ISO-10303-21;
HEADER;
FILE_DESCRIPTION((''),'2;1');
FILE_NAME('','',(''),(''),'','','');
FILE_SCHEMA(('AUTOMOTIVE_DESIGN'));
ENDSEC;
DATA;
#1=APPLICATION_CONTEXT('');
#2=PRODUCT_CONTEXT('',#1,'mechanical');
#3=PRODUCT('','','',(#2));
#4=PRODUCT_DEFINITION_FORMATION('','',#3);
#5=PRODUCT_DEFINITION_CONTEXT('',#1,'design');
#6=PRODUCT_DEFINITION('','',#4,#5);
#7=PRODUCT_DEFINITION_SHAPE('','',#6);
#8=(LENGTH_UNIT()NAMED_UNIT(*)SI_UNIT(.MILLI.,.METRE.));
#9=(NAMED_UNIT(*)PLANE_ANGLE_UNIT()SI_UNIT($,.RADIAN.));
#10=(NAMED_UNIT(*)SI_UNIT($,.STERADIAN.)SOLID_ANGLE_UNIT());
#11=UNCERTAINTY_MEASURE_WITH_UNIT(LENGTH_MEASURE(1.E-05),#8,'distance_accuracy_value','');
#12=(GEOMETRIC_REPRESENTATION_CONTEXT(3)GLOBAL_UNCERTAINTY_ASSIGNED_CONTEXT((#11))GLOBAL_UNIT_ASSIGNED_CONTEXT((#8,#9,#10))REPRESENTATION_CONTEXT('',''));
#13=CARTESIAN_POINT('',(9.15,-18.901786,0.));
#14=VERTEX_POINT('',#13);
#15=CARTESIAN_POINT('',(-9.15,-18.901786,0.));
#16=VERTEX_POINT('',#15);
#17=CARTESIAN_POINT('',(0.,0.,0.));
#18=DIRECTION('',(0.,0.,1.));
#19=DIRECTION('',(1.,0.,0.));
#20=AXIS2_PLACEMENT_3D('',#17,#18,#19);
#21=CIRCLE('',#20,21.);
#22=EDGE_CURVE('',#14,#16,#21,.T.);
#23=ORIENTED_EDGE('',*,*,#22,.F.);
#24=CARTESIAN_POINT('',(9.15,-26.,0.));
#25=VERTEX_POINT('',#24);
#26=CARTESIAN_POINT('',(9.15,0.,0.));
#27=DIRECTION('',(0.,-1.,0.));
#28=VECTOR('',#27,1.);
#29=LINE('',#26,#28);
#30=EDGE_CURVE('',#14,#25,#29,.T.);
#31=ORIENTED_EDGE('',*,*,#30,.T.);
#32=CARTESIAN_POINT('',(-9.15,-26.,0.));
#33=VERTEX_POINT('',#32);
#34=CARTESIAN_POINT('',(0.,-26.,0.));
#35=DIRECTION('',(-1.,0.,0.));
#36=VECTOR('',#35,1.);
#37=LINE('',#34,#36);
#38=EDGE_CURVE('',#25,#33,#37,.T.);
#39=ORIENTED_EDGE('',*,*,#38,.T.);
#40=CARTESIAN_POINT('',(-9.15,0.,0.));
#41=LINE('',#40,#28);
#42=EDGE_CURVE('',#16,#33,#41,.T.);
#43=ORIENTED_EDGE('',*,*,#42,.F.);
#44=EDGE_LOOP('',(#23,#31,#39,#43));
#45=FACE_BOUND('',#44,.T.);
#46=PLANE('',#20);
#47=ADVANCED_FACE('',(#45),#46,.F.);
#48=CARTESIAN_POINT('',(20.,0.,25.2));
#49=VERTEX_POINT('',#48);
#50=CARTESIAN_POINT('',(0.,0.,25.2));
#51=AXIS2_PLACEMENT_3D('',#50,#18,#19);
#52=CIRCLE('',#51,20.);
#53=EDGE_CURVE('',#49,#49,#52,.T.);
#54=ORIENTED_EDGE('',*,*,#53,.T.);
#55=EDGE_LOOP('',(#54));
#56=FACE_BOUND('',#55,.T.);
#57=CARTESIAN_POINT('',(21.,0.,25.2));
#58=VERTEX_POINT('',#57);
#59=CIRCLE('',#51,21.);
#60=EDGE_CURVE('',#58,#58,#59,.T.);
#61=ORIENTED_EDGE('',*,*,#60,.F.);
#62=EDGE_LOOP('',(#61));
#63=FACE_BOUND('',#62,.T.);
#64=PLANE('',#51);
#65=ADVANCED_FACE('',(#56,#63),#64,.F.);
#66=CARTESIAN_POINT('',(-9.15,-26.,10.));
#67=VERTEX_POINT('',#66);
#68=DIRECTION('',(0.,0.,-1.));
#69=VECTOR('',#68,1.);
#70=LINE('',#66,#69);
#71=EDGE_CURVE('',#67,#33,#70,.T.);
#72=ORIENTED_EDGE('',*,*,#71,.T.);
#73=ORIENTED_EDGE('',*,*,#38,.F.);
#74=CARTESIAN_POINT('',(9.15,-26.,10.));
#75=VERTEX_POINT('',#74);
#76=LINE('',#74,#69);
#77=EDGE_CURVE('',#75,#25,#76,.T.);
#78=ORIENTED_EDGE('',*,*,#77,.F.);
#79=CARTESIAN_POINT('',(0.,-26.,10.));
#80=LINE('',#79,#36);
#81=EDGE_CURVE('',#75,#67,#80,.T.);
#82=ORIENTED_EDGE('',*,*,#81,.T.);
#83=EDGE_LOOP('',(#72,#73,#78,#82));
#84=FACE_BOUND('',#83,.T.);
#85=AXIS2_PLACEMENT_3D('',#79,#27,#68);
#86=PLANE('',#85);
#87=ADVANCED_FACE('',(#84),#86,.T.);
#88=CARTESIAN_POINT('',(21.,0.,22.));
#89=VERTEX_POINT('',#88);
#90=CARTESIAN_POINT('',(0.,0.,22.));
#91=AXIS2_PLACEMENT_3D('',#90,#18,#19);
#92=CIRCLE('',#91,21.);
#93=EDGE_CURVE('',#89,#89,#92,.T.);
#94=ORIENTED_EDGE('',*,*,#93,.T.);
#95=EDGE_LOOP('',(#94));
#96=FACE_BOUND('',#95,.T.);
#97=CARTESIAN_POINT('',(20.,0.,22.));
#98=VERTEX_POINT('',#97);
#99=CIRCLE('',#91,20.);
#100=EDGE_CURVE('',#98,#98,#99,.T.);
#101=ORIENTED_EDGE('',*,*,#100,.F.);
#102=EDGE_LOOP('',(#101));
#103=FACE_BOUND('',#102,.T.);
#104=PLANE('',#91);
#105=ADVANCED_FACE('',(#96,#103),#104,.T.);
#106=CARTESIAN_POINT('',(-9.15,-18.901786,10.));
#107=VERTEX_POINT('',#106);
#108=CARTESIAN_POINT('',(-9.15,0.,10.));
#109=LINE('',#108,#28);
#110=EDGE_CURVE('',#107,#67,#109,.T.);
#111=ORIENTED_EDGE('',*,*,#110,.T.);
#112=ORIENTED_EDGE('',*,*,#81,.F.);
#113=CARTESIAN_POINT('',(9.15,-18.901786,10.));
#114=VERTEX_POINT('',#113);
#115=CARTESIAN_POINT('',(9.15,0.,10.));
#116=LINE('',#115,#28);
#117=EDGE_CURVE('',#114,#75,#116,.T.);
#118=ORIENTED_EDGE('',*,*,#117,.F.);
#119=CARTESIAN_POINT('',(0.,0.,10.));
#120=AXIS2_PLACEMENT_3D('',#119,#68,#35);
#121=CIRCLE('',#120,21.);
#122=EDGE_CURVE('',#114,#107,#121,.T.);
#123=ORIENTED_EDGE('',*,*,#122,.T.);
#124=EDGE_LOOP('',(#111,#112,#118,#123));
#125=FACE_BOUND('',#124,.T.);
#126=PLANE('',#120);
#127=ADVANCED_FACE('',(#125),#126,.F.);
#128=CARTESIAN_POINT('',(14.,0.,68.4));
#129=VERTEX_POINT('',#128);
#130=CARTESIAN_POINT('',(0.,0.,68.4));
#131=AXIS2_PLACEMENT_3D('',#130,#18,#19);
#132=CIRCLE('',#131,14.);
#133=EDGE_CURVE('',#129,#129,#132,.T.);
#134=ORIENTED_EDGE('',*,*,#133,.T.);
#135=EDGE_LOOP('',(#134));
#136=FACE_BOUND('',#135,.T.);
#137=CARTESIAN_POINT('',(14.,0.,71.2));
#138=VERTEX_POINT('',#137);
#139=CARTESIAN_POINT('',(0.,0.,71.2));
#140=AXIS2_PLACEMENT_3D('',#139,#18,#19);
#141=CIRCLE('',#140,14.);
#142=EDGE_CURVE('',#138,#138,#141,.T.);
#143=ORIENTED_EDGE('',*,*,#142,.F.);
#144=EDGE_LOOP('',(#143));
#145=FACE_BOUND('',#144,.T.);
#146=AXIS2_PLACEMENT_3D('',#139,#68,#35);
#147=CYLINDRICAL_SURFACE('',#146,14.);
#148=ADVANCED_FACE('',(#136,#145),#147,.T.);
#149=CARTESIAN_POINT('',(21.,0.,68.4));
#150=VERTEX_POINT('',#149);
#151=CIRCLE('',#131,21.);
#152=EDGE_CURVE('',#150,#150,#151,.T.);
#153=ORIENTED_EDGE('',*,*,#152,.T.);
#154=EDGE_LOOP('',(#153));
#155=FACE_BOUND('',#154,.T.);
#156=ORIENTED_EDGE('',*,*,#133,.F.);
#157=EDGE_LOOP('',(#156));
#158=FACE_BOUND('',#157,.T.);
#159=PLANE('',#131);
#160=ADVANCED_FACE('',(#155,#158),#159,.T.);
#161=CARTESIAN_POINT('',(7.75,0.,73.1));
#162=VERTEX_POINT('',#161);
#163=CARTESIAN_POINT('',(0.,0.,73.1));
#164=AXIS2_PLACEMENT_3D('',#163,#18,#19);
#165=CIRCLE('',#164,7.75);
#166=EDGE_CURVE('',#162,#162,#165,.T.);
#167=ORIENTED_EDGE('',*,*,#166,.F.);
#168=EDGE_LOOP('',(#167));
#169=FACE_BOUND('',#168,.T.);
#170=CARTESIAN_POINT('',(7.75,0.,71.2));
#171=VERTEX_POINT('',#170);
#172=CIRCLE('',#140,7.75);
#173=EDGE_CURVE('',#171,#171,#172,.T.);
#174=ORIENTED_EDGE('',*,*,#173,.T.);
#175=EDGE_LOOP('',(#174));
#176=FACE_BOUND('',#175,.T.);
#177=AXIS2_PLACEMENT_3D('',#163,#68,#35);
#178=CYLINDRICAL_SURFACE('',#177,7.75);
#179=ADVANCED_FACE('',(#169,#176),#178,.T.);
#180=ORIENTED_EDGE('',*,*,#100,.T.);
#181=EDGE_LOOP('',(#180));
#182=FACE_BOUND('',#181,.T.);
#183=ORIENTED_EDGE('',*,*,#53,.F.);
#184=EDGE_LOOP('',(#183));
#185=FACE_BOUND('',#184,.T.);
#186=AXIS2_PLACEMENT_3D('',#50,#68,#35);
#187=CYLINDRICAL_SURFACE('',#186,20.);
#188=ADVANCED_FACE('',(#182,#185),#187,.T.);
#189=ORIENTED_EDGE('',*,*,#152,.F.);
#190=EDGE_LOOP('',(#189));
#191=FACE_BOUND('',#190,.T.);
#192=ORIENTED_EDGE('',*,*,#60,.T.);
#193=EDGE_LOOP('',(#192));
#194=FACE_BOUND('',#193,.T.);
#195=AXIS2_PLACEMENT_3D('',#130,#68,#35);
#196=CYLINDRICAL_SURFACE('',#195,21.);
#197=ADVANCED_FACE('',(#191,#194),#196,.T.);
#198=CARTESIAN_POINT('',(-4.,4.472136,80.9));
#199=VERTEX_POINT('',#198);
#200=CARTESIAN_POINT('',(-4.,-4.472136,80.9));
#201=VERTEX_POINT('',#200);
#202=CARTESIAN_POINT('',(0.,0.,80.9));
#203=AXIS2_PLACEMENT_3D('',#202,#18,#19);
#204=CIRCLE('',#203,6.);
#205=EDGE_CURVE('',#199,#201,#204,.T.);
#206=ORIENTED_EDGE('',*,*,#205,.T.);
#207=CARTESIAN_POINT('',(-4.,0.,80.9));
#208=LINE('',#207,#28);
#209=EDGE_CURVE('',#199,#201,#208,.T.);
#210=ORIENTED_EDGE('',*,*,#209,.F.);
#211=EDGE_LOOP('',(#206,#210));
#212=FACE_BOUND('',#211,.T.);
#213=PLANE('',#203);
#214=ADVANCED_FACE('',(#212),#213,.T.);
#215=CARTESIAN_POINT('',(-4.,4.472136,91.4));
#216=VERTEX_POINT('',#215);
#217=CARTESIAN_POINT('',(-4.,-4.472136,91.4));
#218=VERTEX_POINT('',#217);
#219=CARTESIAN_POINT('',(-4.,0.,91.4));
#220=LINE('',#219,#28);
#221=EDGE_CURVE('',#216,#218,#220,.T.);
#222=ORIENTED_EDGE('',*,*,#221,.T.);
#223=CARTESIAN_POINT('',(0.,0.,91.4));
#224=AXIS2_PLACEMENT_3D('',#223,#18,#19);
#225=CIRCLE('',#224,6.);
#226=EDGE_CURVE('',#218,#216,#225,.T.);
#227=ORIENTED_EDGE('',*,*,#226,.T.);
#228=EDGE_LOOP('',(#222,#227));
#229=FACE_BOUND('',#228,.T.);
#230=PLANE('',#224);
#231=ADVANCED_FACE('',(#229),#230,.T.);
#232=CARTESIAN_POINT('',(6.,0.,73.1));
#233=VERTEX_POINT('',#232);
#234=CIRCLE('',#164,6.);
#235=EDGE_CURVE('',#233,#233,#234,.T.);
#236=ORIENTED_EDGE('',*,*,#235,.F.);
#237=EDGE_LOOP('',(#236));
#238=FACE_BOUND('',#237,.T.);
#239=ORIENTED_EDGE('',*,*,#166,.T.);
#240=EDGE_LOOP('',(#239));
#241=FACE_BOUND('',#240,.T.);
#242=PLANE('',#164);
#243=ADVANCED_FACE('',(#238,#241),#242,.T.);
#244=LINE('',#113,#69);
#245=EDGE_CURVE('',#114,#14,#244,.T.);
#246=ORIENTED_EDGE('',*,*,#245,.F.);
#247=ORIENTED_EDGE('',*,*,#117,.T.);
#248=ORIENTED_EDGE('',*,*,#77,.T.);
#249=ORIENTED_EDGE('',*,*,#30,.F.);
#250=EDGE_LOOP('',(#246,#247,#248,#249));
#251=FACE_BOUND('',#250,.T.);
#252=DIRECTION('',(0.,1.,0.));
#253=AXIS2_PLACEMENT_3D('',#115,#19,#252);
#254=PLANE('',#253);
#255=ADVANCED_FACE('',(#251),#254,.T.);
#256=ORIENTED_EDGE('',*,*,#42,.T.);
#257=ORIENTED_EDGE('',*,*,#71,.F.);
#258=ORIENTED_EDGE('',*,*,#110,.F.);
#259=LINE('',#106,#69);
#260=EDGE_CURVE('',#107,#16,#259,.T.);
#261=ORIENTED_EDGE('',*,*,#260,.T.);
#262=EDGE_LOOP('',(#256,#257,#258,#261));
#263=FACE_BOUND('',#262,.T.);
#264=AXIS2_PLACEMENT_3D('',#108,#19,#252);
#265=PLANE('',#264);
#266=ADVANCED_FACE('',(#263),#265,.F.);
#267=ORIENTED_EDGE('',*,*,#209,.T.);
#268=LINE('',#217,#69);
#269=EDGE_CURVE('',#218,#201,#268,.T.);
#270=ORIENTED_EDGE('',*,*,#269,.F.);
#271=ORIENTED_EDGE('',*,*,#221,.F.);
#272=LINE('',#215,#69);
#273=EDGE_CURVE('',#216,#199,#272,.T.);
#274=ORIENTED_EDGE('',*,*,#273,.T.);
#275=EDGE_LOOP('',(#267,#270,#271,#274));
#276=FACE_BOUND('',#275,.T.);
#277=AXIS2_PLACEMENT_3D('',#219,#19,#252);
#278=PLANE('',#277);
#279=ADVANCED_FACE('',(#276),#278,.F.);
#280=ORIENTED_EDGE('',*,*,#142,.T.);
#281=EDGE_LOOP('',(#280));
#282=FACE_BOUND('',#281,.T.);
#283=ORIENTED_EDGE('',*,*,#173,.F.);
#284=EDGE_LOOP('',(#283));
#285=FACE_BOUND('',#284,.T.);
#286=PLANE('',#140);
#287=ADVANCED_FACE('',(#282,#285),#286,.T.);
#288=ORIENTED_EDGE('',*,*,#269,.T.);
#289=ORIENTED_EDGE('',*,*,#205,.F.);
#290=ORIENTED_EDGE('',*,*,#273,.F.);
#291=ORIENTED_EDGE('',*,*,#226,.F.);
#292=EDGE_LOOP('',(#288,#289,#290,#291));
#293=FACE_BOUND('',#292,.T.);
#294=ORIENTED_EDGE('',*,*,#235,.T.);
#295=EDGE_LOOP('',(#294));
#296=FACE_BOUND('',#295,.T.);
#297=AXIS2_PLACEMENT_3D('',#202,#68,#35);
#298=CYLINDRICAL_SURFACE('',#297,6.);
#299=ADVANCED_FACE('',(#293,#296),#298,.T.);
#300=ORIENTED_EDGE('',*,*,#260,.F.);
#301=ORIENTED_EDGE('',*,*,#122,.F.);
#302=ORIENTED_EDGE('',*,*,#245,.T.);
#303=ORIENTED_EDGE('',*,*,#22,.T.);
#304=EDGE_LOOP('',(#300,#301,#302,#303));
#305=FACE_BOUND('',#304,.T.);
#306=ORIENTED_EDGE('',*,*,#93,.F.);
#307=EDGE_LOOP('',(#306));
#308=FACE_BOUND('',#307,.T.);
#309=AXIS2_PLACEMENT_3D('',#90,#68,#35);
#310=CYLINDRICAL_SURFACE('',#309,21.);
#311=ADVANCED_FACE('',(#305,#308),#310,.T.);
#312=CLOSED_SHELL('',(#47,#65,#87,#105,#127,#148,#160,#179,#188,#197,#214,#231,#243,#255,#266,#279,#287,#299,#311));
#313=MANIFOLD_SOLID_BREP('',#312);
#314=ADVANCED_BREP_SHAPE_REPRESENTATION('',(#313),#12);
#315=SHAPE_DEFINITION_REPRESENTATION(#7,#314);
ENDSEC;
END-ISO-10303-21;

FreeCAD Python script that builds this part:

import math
import FreeCAD as App
import Part
import Sketcher
Q = App.Units.Quantity

doc = App.newDocument("Part")
body = doc.addObject("PartDesign::Body", "Body")

# Sketch on XY plane
sketch1 = doc.addObject("Sketcher::SketchObject", "Sketch")
body.addObject(sketch1)
sketch1.AttachmentSupport = (doc.XY_Plane, [""])
sketch1.MapMode = "FlatFace"
sketch1.addGeometry(Part.Circle(App.Vector(0, 0, 0), App.Vector(0, 0, 1), 21), False)
sketch1.addConstraint(Sketcher.Constraint("Coincident", 0, 3, -1, 1))
sketch1.addConstraint(Sketcher.Constraint("Diameter", 0, Q("42 mm")))
pad1 = doc.addObject("PartDesign::Pad", "Pad")
body.addObject(pad1)
pad1.Profile = sketch1
pad1.Length = 22

# Sketch on XY plane
sketch2 = doc.addObject("Sketcher::SketchObject", "Sketch001")
body.addObject(sketch2)
sketch2.AttachmentSupport = (doc.XY_Plane, [""])
sketch2.MapMode = "FlatFace"
sketch2.addGeometry(Part.ArcOfCircle(Part.Circle(App.Vector(0, 0, 0), App.Vector(0, 0, 1), 21), math.radians(-116), math.radians(-64)), False)
sketch2.addGeometry(Part.LineSegment(App.Vector(9, -19, 0), App.Vector(9, -26, 0)), False)
sketch2.addGeometry(Part.LineSegment(App.Vector(9, -26, 0), App.Vector(-9, -26, 0)), False)
sketch2.addGeometry(Part.LineSegment(App.Vector(-9, -26, 0), App.Vector(-9, -19, 0)), False)
sketch2.addConstraint(Sketcher.Constraint("Coincident", 0, 2, 1, 1))
sketch2.addConstraint(Sketcher.Constraint("Coincident", 1, 2, 2, 1))
sketch2.addConstraint(Sketcher.Constraint("Coincident", 2, 2, 3, 1))
sketch2.addConstraint(Sketcher.Constraint("Coincident", 3, 2, 0, 1))
sketch2.addConstraint(Sketcher.Constraint("Vertical", 1))
sketch2.addConstraint(Sketcher.Constraint("Horizontal", 2))
sketch2.addConstraint(Sketcher.Constraint("Vertical", 3))
sketch2.addConstraint(Sketcher.Constraint("Coincident", 0, 3, -1, 1))
sketch2.addConstraint(Sketcher.Constraint("Horizontal", 0, 2, 3, 2))
sketch2.addConstraint(Sketcher.Constraint("Radius", 0, Q("21 mm")))
sketch2.addConstraint(Sketcher.Constraint("DistanceX", 2, 2, 2, 1, Q("18.3 mm")))
sketch2.addConstraint(Sketcher.Constraint("DistanceY", 1, 2, -1, 1, Q("26 mm")))
pad2 = doc.addObject("PartDesign::Pad", "Pad001")
body.addObject(pad2)
pad2.Profile = sketch2
pad2.Length = 10

# Sketch on XY plane
sketch3 = doc.addObject("Sketcher::SketchObject", "Sketch002")
body.addObject(sketch3)
sketch3.AttachmentSupport = (doc.XY_Plane, [""])
sketch3.MapMode = "FlatFace"
sketch3.AttachmentOffset = App.Placement(App.Vector(0, 0, 22), App.Rotation())
sketch3.addGeometry(Part.Circle(App.Vector(0, 0, 0), App.Vector(0, 0, 1), 20), False)
sketch3.addConstraint(Sketcher.Constraint("Coincident", 0, 3, -1, 1))
sketch3.addConstraint(Sketcher.Constraint("Diameter", 0, Q("40 mm")))
pad3 = doc.addObject("PartDesign::Pad", "Pad002")
body.addObject(pad3)
pad3.Profile = sketch3
pad3.Length = 3.2

# Sketch on XY plane
sketch4 = doc.addObject("Sketcher::SketchObject", "Sketch003")
body.addObject(sketch4)
sketch4.AttachmentSupport = (doc.XY_Plane, [""])
sketch4.MapMode = "FlatFace"
sketch4.AttachmentOffset = App.Placement(App.Vector(0, 0, 25.2), App.Rotation())
sketch4.addGeometry(Part.Circle(App.Vector(0, 0, 0), App.Vector(0, 0, 1), 21), False)
sketch4.addConstraint(Sketcher.Constraint("Coincident", 0, 3, -1, 1))
sketch4.addConstraint(Sketcher.Constraint("Diameter", 0, Q("42 mm")))
pad4 = doc.addObject("PartDesign::Pad", "Pad003")
body.addObject(pad4)
pad4.Profile = sketch4
pad4.Length = 43.2

# Sketch on XY plane
sketch5 = doc.addObject("Sketcher::SketchObject", "Sketch004")
body.addObject(sketch5)
sketch5.AttachmentSupport = (doc.XY_Plane, [""])
sketch5.MapMode = "FlatFace"
sketch5.AttachmentOffset = App.Placement(App.Vector(0, 0, 68.4), App.Rotation())
sketch5.addGeometry(Part.Circle(App.Vector(0, 0, 0), App.Vector(0, 0, 1), 14), False)
sketch5.addConstraint(Sketcher.Constraint("Coincident", 0, 3, -1, 1))
sketch5.addConstraint(Sketcher.Constraint("Diameter", 0, Q("28 mm")))
pad5 = doc.addObject("PartDesign::Pad", "Pad004")
body.addObject(pad5)
pad5.Profile = sketch5
pad5.Length = 2.8

# Sketch on XY plane
sketch6 = doc.addObject("Sketcher::SketchObject", "Sketch005")
body.addObject(sketch6)
sketch6.AttachmentSupport = (doc.XY_Plane, [""])
sketch6.MapMode = "FlatFace"
sketch6.AttachmentOffset = App.Placement(App.Vector(0, 0, 71.2), App.Rotation())
sketch6.addGeometry(Part.Circle(App.Vector(0, 0, 0), App.Vector(0, 0, 1), 8), False)
sketch6.addConstraint(Sketcher.Constraint("Coincident", 0, 3, -1, 1))
sketch6.addConstraint(Sketcher.Constraint("Diameter", 0, Q("15.5 mm")))
pad6 = doc.addObject("PartDesign::Pad", "Pad005")
body.addObject(pad6)
pad6.Profile = sketch6
pad6.Length = 1.9

# Sketch on XY plane
sketch7 = doc.addObject("Sketcher::SketchObject", "Sketch006")
body.addObject(sketch7)
sketch7.AttachmentSupport = (doc.XY_Plane, [""])
sketch7.MapMode = "FlatFace"
sketch7.AttachmentOffset = App.Placement(App.Vector(0, 0, 73.1), App.Rotation())
sketch7.addGeometry(Part.Circle(App.Vector(0, 0, 0), App.Vector(0, 0, 1), 6), False)
sketch7.addConstraint(Sketcher.Constraint("Coincident", 0, 3, -1, 1))
sketch7.addConstraint(Sketcher.Constraint("Diameter", 0, Q("12 mm")))
pad7 = doc.addObject("PartDesign::Pad", "Pad006")
body.addObject(pad7)
pad7.Profile = sketch7
pad7.Length = 7.8

# Sketch on XY plane
sketch8 = doc.addObject("Sketcher::SketchObject", "Sketch007")
body.addObject(sketch8)
sketch8.AttachmentSupport = (doc.XY_Plane, [""])
sketch8.MapMode = "FlatFace"
sketch8.AttachmentOffset = App.Placement(App.Vector(0, 0, 80.9), App.Rotation())
sketch8.addGeometry(Part.ArcOfCircle(Part.Circle(App.Vector(0, 0, 0), App.Vector(0, 0, 1), 6), math.radians(0), math.radians(132)), False)
sketch8.addGeometry(Part.LineSegment(App.Vector(-4, 4, 0), App.Vector(-4, -4, 0)), False)
sketch8.addGeometry(Part.ArcOfCircle(Part.Circle(App.Vector(0, 0, 0), App.Vector(0, 0, 1), 6), math.radians(-132), math.radians(0)), False)
sketch8.addConstraint(Sketcher.Constraint("Coincident", 0, 2, 1, 1))
sketch8.addConstraint(Sketcher.Constraint("Coincident", 1, 2, 2, 1))
sketch8.addConstraint(Sketcher.Constraint("Tangent", 2, 2, 0, 1))
sketch8.addConstraint(Sketcher.Constraint("Vertical", 1))
sketch8.addConstraint(Sketcher.Constraint("Coincident", 0, 3, -1, 1))
sketch8.addConstraint(Sketcher.Constraint("Equal", 0, 2))
sketch8.addConstraint(Sketcher.Constraint("PointOnObject", 2, 2, -1))
sketch8.addConstraint(Sketcher.Constraint("Radius", 0, Q("6 mm")))
sketch8.addConstraint(Sketcher.Constraint("DistanceX", 0, 2, -1, 1, Q("4 mm")))
pad8 = doc.addObject("PartDesign::Pad", "Pad007")
body.addObject(pad8)
pad8.Profile = sketch8
pad8.Length = 10.5

doc.recompute()
